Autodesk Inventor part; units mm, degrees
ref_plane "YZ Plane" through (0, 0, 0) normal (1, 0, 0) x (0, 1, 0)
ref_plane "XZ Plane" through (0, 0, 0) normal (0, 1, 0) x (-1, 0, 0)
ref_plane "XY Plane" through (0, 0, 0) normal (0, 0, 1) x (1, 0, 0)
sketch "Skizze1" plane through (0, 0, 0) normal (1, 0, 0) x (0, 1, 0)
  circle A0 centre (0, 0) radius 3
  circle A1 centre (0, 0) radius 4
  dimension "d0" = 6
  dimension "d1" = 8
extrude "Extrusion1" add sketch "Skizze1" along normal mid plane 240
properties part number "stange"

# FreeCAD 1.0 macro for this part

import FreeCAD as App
import Part
import Sketcher

V = App.Vector

doc = App.newDocument("Part")
body = doc.addObject("PartDesign::Body", "Body")

sketch1 = doc.addObject("Sketcher::SketchObject", "Sketch")
body.addObject(sketch1)
sketch1.AttachmentSupport = (doc.YZ_Plane, [""])
sketch1.MapMode = "FlatFace"
sketch1.addGeometry([
    Part.Circle(V(0, 0, 0), V(0, 0, 1), 4),
    Part.Circle(V(0, 0, 0), V(0, 0, 1), 3),
], False)
sketch1.addConstraint([
    Sketcher.Constraint("Coincident", 0, 3, -1, 1),
    Sketcher.Constraint("Coincident", 1, 3, -1, 1),
    Sketcher.Constraint("Diameter", 0, 8.0),
    Sketcher.Constraint("Diameter", 1, 6.0),
])
pad1 = doc.addObject("PartDesign::Pad", "Pad")
body.addObject(pad1)
pad1.Profile = sketch1
pad1.Length = 240
pad1.Midplane = True

doc.recompute()
